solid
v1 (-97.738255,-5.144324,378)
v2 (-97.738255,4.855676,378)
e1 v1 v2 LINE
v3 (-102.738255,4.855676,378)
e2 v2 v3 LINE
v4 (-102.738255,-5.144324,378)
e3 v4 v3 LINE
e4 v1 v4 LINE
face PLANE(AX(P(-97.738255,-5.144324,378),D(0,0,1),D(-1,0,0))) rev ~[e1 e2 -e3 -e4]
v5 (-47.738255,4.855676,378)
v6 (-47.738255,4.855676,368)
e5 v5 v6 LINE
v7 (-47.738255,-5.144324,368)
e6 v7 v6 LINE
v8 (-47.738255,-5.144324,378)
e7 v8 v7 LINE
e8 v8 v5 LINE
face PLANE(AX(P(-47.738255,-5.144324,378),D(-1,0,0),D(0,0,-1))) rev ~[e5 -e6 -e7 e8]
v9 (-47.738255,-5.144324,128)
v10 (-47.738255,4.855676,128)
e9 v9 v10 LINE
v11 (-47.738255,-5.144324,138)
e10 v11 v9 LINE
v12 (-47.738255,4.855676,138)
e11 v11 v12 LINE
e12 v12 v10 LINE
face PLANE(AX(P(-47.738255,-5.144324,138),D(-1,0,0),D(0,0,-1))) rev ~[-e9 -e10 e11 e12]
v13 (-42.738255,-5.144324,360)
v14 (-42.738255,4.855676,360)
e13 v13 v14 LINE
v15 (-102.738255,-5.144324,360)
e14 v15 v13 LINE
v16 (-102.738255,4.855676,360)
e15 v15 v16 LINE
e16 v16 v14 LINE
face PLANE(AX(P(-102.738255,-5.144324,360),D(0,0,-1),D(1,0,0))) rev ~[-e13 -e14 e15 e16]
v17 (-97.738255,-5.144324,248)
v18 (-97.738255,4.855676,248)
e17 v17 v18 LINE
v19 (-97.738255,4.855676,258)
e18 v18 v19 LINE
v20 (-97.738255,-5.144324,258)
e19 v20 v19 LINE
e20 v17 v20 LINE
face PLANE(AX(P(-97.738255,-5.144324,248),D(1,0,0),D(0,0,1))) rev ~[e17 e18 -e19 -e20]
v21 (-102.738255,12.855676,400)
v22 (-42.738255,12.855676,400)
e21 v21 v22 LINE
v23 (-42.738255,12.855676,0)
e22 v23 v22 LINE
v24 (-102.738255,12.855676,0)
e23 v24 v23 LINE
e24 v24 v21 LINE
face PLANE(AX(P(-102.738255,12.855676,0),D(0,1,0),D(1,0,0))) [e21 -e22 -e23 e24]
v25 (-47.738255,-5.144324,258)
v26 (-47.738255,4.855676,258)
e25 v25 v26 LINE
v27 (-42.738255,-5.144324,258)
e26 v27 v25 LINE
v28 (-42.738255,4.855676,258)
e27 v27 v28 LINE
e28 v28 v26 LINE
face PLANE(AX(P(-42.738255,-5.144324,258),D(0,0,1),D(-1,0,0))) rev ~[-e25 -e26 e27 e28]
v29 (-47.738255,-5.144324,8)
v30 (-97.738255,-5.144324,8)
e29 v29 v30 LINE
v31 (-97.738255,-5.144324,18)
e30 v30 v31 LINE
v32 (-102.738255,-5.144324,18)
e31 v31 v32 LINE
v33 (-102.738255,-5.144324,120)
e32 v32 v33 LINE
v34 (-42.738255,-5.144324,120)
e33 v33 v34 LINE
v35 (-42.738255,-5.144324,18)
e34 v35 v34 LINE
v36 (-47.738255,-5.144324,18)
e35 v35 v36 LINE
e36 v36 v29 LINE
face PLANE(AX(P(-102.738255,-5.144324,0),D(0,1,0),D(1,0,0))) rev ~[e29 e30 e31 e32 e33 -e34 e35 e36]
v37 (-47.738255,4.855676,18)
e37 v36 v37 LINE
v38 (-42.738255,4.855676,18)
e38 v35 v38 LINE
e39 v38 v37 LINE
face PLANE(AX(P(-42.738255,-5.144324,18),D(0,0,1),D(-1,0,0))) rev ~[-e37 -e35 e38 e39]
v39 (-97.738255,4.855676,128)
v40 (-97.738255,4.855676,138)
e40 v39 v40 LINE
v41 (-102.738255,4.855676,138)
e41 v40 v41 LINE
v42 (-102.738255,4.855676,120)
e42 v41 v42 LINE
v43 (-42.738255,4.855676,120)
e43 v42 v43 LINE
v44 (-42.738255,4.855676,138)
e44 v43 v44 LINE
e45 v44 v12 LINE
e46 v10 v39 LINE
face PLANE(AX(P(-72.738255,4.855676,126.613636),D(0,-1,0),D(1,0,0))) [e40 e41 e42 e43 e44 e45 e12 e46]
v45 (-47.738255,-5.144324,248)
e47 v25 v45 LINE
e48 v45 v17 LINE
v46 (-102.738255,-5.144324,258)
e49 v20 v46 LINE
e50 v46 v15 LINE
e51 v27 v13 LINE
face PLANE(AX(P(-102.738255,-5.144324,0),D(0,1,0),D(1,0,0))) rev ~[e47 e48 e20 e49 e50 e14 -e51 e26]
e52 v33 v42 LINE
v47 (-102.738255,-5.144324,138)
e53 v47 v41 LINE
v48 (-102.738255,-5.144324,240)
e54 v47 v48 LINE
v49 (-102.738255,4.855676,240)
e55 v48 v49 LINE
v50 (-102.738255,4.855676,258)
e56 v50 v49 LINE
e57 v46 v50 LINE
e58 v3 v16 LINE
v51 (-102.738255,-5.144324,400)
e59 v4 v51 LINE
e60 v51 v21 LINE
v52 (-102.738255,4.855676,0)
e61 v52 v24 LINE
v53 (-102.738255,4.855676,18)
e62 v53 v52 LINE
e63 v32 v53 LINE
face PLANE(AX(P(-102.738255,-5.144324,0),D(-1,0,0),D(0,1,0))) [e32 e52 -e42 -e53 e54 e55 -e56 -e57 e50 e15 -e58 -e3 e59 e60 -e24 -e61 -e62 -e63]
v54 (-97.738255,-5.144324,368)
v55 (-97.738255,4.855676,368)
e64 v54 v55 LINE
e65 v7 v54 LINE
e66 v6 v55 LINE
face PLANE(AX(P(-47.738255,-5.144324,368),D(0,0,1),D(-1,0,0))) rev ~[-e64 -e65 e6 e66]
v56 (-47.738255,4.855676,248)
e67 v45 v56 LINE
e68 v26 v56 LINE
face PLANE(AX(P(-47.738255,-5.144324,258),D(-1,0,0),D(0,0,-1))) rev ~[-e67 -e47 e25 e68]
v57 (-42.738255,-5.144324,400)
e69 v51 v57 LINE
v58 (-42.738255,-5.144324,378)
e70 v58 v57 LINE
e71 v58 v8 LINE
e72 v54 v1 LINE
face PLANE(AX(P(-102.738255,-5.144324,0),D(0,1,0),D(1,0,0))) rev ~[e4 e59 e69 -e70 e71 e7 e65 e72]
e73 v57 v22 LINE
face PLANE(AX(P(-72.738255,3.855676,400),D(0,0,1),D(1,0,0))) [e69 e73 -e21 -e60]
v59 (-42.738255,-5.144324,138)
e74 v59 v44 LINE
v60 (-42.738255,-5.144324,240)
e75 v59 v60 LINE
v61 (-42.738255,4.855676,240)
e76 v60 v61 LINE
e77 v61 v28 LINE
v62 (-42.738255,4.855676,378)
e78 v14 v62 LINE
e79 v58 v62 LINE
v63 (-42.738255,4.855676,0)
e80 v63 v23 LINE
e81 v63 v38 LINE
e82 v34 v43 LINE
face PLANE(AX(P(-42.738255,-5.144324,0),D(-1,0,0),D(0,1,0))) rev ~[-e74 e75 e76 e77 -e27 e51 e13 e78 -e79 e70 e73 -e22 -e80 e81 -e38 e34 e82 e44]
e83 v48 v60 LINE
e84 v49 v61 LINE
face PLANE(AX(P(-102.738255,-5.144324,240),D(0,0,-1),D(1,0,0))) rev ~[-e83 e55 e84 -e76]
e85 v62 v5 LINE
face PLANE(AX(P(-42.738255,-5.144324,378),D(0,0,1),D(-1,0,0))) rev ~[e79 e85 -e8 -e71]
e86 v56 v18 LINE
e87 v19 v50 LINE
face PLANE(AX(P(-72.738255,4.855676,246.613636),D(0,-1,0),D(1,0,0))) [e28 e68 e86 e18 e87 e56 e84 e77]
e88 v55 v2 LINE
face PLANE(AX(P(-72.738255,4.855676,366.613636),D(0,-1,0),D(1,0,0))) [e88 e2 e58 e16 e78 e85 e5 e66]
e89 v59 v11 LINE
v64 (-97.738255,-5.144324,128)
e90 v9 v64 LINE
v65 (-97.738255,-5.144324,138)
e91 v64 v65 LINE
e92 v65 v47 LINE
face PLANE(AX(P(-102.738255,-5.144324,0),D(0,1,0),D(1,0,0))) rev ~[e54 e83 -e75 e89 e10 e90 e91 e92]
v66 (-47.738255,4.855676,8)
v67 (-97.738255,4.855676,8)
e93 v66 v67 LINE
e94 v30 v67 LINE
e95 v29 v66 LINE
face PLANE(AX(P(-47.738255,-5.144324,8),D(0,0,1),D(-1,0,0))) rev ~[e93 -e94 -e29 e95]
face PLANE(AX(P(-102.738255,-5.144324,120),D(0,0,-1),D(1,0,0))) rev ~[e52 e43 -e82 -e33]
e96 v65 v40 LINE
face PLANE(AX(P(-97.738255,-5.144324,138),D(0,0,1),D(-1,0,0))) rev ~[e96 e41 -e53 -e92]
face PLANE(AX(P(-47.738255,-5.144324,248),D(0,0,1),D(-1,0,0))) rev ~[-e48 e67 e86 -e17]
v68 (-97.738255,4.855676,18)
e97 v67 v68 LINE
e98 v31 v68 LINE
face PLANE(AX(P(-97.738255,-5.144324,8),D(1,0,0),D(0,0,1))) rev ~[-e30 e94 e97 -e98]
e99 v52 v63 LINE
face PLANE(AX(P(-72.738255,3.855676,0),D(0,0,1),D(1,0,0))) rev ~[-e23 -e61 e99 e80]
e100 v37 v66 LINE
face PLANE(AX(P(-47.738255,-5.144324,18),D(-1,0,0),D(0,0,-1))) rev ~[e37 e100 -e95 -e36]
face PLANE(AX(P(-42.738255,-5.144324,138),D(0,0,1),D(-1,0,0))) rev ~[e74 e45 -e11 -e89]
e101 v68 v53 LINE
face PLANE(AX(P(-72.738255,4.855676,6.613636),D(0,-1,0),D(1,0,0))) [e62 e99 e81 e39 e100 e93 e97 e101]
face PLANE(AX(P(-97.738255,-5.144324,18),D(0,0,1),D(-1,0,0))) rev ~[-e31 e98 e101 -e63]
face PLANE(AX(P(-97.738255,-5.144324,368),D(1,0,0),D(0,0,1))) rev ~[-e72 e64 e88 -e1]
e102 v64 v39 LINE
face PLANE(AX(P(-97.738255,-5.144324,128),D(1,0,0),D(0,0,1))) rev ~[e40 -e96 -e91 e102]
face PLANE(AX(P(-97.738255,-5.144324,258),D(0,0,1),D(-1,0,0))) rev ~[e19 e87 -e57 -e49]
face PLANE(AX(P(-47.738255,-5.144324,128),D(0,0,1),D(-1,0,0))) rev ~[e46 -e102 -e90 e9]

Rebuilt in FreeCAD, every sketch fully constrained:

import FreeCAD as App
import Part
import Sketcher

V = App.Vector
Q = App.Units.Quantity


def add_polygon(sketch, points):
    """Adds a closed chain of lines whose ends are joined by coincident constraints."""
    first, n = sketch.GeometryCount, len(points)
    for a, b in zip(points, points[1:] + points[:1]):
        sketch.addGeometry(Part.LineSegment(App.Vector(*a, 0), App.Vector(*b, 0)), False)
    for i in range(n):
        sketch.addConstraint(Sketcher.Constraint("Coincident", first + i, 2, first + (i + 1) % n, 1))

doc = App.newDocument("Part")
body = doc.addObject("PartDesign::Body", "Body")

# Sketch on XY plane
sketch1 = doc.addObject("Sketcher::SketchObject", "Sketch")
body.addObject(sketch1)
sketch1.AttachmentSupport = (doc.XY_Plane, [""])
sketch1.MapMode = "FlatFace"
add_polygon(sketch1, [(-102.738255, 12.855676), (-102.738255, -5.144324), (-42.738255, -5.144324), (-42.738255, 12.855676)])  # lines 0-3
sketch1.addConstraint(Sketcher.Constraint("Vertical", 0))
sketch1.addConstraint(Sketcher.Constraint("Horizontal", 1))
sketch1.addConstraint(Sketcher.Constraint("Vertical", 2))
sketch1.addConstraint(Sketcher.Constraint("Horizontal", 3))
sketch1.addConstraint(Sketcher.Constraint("DistanceX", 1, 1, 1, 2, Q("60 mm")))
sketch1.addConstraint(Sketcher.Constraint("DistanceY", 0, 2, 0, 1, Q("18 mm")))
sketch1.addConstraint(Sketcher.Constraint("DistanceX", 0, 2, -1, 1, Q("102.738255 mm")))
sketch1.addConstraint(Sketcher.Constraint("DistanceY", 0, 2, -1, 1, Q("5.144324 mm")))
pad1 = doc.addObject("PartDesign::Pad", "Pad")
body.addObject(pad1)
pad1.Profile = sketch1
pad1.Length = 400

# Sketch on XZ plane
sketch2 = doc.addObject("Sketcher::SketchObject", "Sketch001")
body.addObject(sketch2)
sketch2.AttachmentSupport = (doc.XZ_Plane, [""])
sketch2.MapMode = "FlatFace"
sketch2.AttachmentOffset = App.Placement(V(0, 0, 5.144324), App.Rotation())
add_polygon(sketch2, [(-102.738255, 0), (-42.738255, 0), (-42.738255, 18), (-47.738255, 18), (-47.738255, 8), (-97.738255, 8), (-97.738255, 18), (-102.738255, 18)])  # lines 0-7
add_polygon(sketch2, [(-102.738255, 138), (-102.738255, 120), (-42.738255, 120), (-42.738255, 138), (-47.738255, 138), (-47.738255, 128), (-97.738255, 128), (-97.738255, 138)])  # lines 8-15
add_polygon(sketch2, [(-102.738255, 258), (-102.738255, 240), (-42.738255, 240), (-42.738255, 258), (-47.738255, 258), (-47.738255, 248), (-97.738255, 248), (-97.738255, 258)])  # lines 16-23
add_polygon(sketch2, [(-102.738255, 378), (-102.738255, 360), (-42.738255, 360), (-42.738255, 378), (-47.738255, 378), (-47.738255, 368), (-97.738255, 368), (-97.738255, 378)])  # lines 24-31
sketch2.addConstraint(Sketcher.Constraint("Horizontal", 0))
sketch2.addConstraint(Sketcher.Constraint("Vertical", 1))
sketch2.addConstraint(Sketcher.Constraint("Horizontal", 2))
sketch2.addConstraint(Sketcher.Constraint("Vertical", 3))
sketch2.addConstraint(Sketcher.Constraint("Horizontal", 4))
sketch2.addConstraint(Sketcher.Constraint("Vertical", 5))
sketch2.addConstraint(Sketcher.Constraint("Horizontal", 6))
sketch2.addConstraint(Sketcher.Constraint("Vertical", 7))
sketch2.addConstraint(Sketcher.Constraint("Vertical", 8))
sketch2.addConstraint(Sketcher.Constraint("Horizontal", 9))
sketch2.addConstraint(Sketcher.Constraint("Vertical", 10))
sketch2.addConstraint(Sketcher.Constraint("Horizontal", 11))
sketch2.addConstraint(Sketcher.Constraint("Vertical", 12))
sketch2.addConstraint(Sketcher.Constraint("Horizontal", 13))
sketch2.addConstraint(Sketcher.Constraint("Vertical", 14))
sketch2.addConstraint(Sketcher.Constraint("Horizontal", 15))
sketch2.addConstraint(Sketcher.Constraint("Vertical", 16))
sketch2.addConstraint(Sketcher.Constraint("Horizontal", 17))
sketch2.addConstraint(Sketcher.Constraint("Vertical", 18))
sketch2.addConstraint(Sketcher.Constraint("Horizontal", 19))
sketch2.addConstraint(Sketcher.Constraint("Vertical", 20))
sketch2.addConstraint(Sketcher.Constraint("Horizontal", 21))
sketch2.addConstraint(Sketcher.Constraint("Vertical", 22))
sketch2.addConstraint(Sketcher.Constraint("Horizontal", 23))
sketch2.addConstraint(Sketcher.Constraint("Vertical", 24))
sketch2.addConstraint(Sketcher.Constraint("Horizontal", 25))
sketch2.addConstraint(Sketcher.Constraint("Vertical", 26))
sketch2.addConstraint(Sketcher.Constraint("Horizontal", 27))
sketch2.addConstraint(Sketcher.Constraint("Vertical", 28))
sketch2.addConstraint(Sketcher.Constraint("Horizontal", 29))
sketch2.addConstraint(Sketcher.Constraint("Vertical", 30))
sketch2.addConstraint(Sketcher.Constraint("Horizontal", 31))
sketch2.addConstraint(Sketcher.Constraint("PointOnObject", 0, 2, -1))
sketch2.addConstraint(Sketcher.Constraint("Horizontal", 2, 2, 5, 2))
sketch2.addConstraint(Sketcher.Constraint("Horizontal", 11, 2, 14, 2))
sketch2.addConstraint(Sketcher.Constraint("Horizontal", 19, 2, 22, 2))
sketch2.addConstraint(Sketcher.Constraint("Horizontal", 27, 2, 30, 2))
sketch2.addConstraint(Sketcher.Constraint("Vertical", 7, 2, 8, 2))
sketch2.addConstraint(Sketcher.Constraint("Vertical", 1, 2, 9, 2))
sketch2.addConstraint(Sketcher.Constraint("Vertical", 3, 2, 11, 2))
sketch2.addConstraint(Sketcher.Constraint("Vertical", 5, 2, 13, 2))
sketch2.addConstraint(Sketcher.Constraint("Vertical", 15, 2, 16, 2))
sketch2.addConstraint(Sketcher.Constraint("Vertical", 10, 2, 17, 2))
sketch2.addConstraint(Sketcher.Constraint("Vertical", 12, 2, 19, 2))
sketch2.addConstraint(Sketcher.Constraint("Vertical", 14, 2, 21, 2))
sketch2.addConstraint(Sketcher.Constraint("Vertical", 23, 2, 24, 2))
sketch2.addConstraint(Sketcher.Constraint("Vertical", 18, 2, 25, 2))
sketch2.addConstraint(Sketcher.Constraint("Vertical", 20, 2, 27, 2))
sketch2.addConstraint(Sketcher.Constraint("Vertical", 22, 2, 29, 2))
sketch2.addConstraint(Sketcher.Constraint("Equal", 2, 6))
sketch2.addConstraint(Sketcher.Constraint("Equal", 7, 8))
sketch2.addConstraint(Sketcher.Constraint("Equal", 5, 12))
sketch2.addConstraint(Sketcher.Constraint("Equal", 10, 16))
sketch2.addConstraint(Sketcher.Constraint("Equal", 14, 20))
sketch2.addConstraint(Sketcher.Constraint("Equal", 18, 24))
sketch2.addConstraint(Sketcher.Constraint("Equal", 22, 28))
sketch2.addConstraint(Sketcher.Constraint("DistanceX", 0, 1, 0, 2, Q("60 mm")))
sketch2.addConstraint(Sketcher.Constraint("DistanceX", 2, 2, 2, 1, Q("5 mm")))
sketch2.addConstraint(Sketcher.Constraint("DistanceY", 1, 1, 1, 2, Q("18 mm")))
sketch2.addConstraint(Sketcher.Constraint("DistanceY", 3, 2, 3, 1, Q("10 mm")))
sketch2.addConstraint(Sketcher.Constraint("DistanceY", -1, 1, 8, 2, Q("120 mm")))
sketch2.addConstraint(Sketcher.Constraint("DistanceY", -1, 1, 16, 2, Q("240 mm")))
sketch2.addConstraint(Sketcher.Constraint("DistanceY", -1, 1, 24, 2, Q("360 mm")))
sketch2.addConstraint(Sketcher.Constraint("DistanceX", 0, 2, -1, 1, Q("42.738255 mm")))
pocket1 = doc.addObject("PartDesign::Pocket", "Pocket")
body.addObject(pocket1)
pocket1.Profile = sketch2
pocket1.Length = 10

doc.recompute()
